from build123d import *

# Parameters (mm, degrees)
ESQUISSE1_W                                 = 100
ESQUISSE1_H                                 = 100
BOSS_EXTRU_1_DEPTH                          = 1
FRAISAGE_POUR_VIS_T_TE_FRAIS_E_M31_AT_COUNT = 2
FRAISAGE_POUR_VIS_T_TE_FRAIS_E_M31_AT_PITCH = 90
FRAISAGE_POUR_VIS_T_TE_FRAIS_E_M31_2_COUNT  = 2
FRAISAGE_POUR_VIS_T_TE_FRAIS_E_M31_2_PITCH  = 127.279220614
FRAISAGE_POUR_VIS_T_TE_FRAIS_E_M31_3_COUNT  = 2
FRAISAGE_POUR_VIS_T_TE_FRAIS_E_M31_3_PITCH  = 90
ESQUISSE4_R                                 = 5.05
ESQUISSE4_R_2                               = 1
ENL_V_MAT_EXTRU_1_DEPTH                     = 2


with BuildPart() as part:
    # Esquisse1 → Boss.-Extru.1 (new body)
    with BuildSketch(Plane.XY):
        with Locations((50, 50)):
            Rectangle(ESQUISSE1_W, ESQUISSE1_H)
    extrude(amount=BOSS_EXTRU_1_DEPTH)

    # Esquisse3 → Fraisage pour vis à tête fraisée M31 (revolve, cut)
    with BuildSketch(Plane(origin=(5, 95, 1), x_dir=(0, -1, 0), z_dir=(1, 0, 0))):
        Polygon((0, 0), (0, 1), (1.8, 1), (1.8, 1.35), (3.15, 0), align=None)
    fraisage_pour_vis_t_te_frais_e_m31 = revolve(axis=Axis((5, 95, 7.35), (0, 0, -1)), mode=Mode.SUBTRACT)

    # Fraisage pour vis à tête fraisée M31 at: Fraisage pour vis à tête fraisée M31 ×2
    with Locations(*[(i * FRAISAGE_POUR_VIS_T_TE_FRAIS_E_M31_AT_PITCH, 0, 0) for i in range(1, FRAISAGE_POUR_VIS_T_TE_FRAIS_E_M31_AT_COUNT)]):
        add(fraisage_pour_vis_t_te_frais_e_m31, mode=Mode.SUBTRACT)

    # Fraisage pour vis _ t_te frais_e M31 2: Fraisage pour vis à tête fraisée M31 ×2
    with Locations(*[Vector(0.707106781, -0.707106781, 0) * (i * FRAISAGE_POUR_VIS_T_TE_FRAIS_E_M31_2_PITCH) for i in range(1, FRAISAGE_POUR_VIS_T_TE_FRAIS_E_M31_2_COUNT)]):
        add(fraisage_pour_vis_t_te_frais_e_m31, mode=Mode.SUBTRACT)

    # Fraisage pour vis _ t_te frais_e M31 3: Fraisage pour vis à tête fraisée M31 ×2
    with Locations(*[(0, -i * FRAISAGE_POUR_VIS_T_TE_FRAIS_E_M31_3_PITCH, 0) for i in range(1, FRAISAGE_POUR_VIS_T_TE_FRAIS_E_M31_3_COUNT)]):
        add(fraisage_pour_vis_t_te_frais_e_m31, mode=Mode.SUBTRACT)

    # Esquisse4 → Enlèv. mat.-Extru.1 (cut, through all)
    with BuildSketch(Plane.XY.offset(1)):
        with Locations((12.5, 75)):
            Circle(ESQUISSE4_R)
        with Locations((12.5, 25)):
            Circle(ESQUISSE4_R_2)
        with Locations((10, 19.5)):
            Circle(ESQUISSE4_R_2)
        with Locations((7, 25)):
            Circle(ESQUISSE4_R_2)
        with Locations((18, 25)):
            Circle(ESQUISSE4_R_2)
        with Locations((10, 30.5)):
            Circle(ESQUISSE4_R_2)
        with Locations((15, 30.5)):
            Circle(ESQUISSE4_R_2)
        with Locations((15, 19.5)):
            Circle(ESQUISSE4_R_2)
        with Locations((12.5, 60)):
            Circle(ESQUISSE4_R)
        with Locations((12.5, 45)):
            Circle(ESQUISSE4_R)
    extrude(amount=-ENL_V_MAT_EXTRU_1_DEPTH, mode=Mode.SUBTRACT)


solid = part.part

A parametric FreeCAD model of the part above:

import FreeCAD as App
import Part
import Sketcher
from FreeCAD import Vector
Q = App.Units.Quantity

doc = App.newDocument("Part")
params = doc.addObject("Spreadsheet::Sheet", "Params")
for row, (alias, value) in enumerate([
    ("sketch1_width", "100 mm"),
    ("pad1_length", "1 mm"),
    ("sketch2_height", "1 mm"),
    ("sketch2_width", "1.8 mm"),
    ("sketch2_width2", "3.15 mm"),
    ("groove_angle", "360 deg"),
    ("linearpattern_pitch", "90 mm"),
    ("linearpattern2_pitch", "127.279221 mm"),
    ("linearpattern3_pitch", "90 mm"),
    ("sketch3_diameter", "2 mm"),
    ("sketch3_diameter2", "10.1 mm"),
], start=1):
    params.set(f"A{row}", alias)
    params.set(f"B{row}", "=" + value)
    params.setAlias(f"B{row}", alias)

body = doc.addObject("PartDesign::Body", "Body")

sketch1 = doc.addObject("Sketcher::SketchObject", "Sketch")
body.addObject(sketch1)
sketch1.AttachmentSupport = (doc.XY_Plane, [""])
sketch1.MapMode = "FlatFace"
sketch1.addGeometry(Part.LineSegment(Vector(0, 100, 0), Vector(0, 0, 0)), False)
sketch1.addGeometry(Part.LineSegment(Vector(0, 0, 0), Vector(100, 0, 0)), False)
sketch1.addGeometry(Part.LineSegment(Vector(100, 0, 0), Vector(100, 100, 0)), False)
sketch1.addGeometry(Part.LineSegment(Vector(100, 100, 0), Vector(0, 100, 0)), False)
sketch1.addConstraint(Sketcher.Constraint("Coincident", 0, 2, 1, 1))
sketch1.addConstraint(Sketcher.Constraint("Coincident", 1, 2, 2, 1))
sketch1.addConstraint(Sketcher.Constraint("Coincident", 2, 2, 3, 1))
sketch1.addConstraint(Sketcher.Constraint("Coincident", 3, 2, 0, 1))
sketch1.addConstraint(Sketcher.Constraint("Vertical", 0))
sketch1.addConstraint(Sketcher.Constraint("Horizontal", 1))
sketch1.addConstraint(Sketcher.Constraint("Vertical", 2))
sketch1.addConstraint(Sketcher.Constraint("Horizontal", 3))
sketch1.addConstraint(Sketcher.Constraint("Coincident", 0, 2, -1, 1))
sketch1.addConstraint(Sketcher.Constraint("Equal", 3, 0))
sketch1.addConstraint(Sketcher.Constraint("DistanceX", 1, 1, 1, 2, Q("100 mm")))
sketch1.setExpression("Constraints[10]", "Params.sketch1_width")
pad1 = doc.addObject("PartDesign::Pad", "Pad")
body.addObject(pad1)
pad1.Profile = sketch1
pad1.setExpression("Length", "Params.pad1_length")

sketch2 = doc.addObject("Sketcher::SketchObject", "Sketch001")
body.addObject(sketch2)
sketch2.AttachmentSupport = (doc.YZ_Plane, [""])
sketch2.MapMode = "FlatFace"
sketch2.AttachmentOffset = App.Placement(Vector(0, 0, 5), App.Rotation())
sketch2.addGeometry(Part.LineSegment(Vector(95, 0, 0), Vector(95, 1, 0)), False)
sketch2.addGeometry(Part.LineSegment(Vector(95, 1, 0), Vector(91.85, 1, 0)), False)
sketch2.addGeometry(Part.LineSegment(Vector(91.85, 1, 0), Vector(93.2, -0.35, 0)), False)
sketch2.addGeometry(Part.LineSegment(Vector(93.2, -0.35, 0), Vector(93.2, 0, 0)), False)
sketch2.addGeometry(Part.LineSegment(Vector(93.2, 0, 0), Vector(95, 0, 0)), False)
sketch2.addGeometry(Part.LineSegment(Vector(95, 1, 0), Vector(95, -0.35, 0)), True)
sketch2.addConstraint(Sketcher.Constraint("Coincident", 0, 2, 1, 1))
sketch2.addConstraint(Sketcher.Constraint("Coincident", 1, 2, 2, 1))
sketch2.addConstraint(Sketcher.Constraint("Coincident", 2, 2, 3, 1))
sketch2.addConstraint(Sketcher.Constraint("Coincident", 3, 2, 4, 1))
sketch2.addConstraint(Sketcher.Constraint("Coincident", 4, 2, 0, 1))
sketch2.addConstraint(Sketcher.Constraint("Vertical", 0))
sketch2.addConstraint(Sketcher.Constraint("Horizontal", 1))
sketch2.addConstraint(Sketcher.Constraint("Vertical", 3))
sketch2.addConstraint(Sketcher.Constraint("Horizontal", 4))
sketch2.addConstraint(Sketcher.Constraint("Vertical", 5))
sketch2.addConstraint(Sketcher.Constraint("Coincident", 5, 1, 0, 2))
sketch2.addConstraint(Sketcher.Constraint("PointOnObject", 3, 2, -1))
sketch2.addConstraint(Sketcher.Constraint("Horizontal", 2, 2, 5, 2))
sketch2.addConstraint(Sketcher.Constraint("DistanceY", 0, 1, 0, 2, Q("1 mm")))
sketch2.addConstraint(Sketcher.Constraint("Angle", 2, Q("-45 deg")))
sketch2.addConstraint(Sketcher.Constraint("DistanceX", 4, 1, 4, 2, Q("1.8 mm")))
sketch2.addConstraint(Sketcher.Constraint("DistanceX", -1, 1, 0, 2, Q("95 mm")))
sketch2.addConstraint(Sketcher.Constraint("DistanceX", 1, 2, 1, 1, Q("3.15 mm")))
sketch2.setExpression("Constraints[13]", "Params.sketch2_height")
sketch2.setExpression("Constraints[15]", "Params.sketch2_width")
sketch2.setExpression("Constraints[17]", "Params.sketch2_width2")
groove = doc.addObject("PartDesign::Groove", "Groove")
body.addObject(groove)
groove.Profile = sketch2
groove.ReferenceAxis = (sketch2, ["Axis0"])
groove.setExpression("Angle", "Params.groove_angle")
doc.recompute()

linearpattern = doc.addObject("PartDesign::LinearPattern", "LinearPattern")
body.addObject(linearpattern)
linearpattern.Originals = [groove]
linearpattern.Direction = (doc.X_Axis, [""])
linearpattern.Mode = "offset"
linearpattern.setExpression("Offset", "Params.linearpattern_pitch")
linearpattern.Occurrences = 2
body.Tip = linearpattern
doc.recompute()

datumline = doc.addObject("PartDesign::Line", "DatumLine")
body.addObject(datumline)
datumline.Placement = App.Placement(Vector(0, 0, 0), App.Rotation(Vector(0, 0, 1), Vector(0.707106781, -0.707106781, 0)))
linearpattern2 = doc.addObject("PartDesign::LinearPattern", "LinearPattern001")
body.addObject(linearpattern2)
linearpattern2.Originals = [groove]
linearpattern2.Direction = (datumline, [""])
linearpattern2.Mode = "offset"
linearpattern2.setExpression("Offset", "Params.linearpattern2_pitch")
linearpattern2.Occurrences = 2
body.Tip = linearpattern2
doc.recompute()

linearpattern3 = doc.addObject("PartDesign::LinearPattern", "LinearPattern002")
body.addObject(linearpattern3)
linearpattern3.Originals = [groove]
linearpattern3.Direction = (doc.Y_Axis, [""])
linearpattern3.Mode = "offset"
linearpattern3.setExpression("Offset", "Params.linearpattern3_pitch")
linearpattern3.Occurrences = 2
linearpattern3.Reversed = True
body.Tip = linearpattern3

sketch3 = doc.addObject("Sketcher::SketchObject", "Sketch002")
body.addObject(sketch3)
sketch3.AttachmentSupport = (doc.XY_Plane, [""])
sketch3.MapMode = "FlatFace"
sketch3.AttachmentOffset = App.Placement(Vector(0, 0, 1), App.Rotation())
sketch3.addGeometry(Part.Circle(Vector(12.5, 75, 0), Vector(0, 0, 1), 5), False)
sketch3.addGeometry(Part.Circle(Vector(12.5, 25, 0), Vector(0, 0, 1), 1), False)
sketch3.addGeometry(Part.Circle(Vector(10, 19.5, 0), Vector(0, 0, 1), 1), False)
sketch3.addGeometry(Part.Circle(Vector(7, 25, 0), Vector(0, 0, 1), 1), False)
sketch3.addGeometry(Part.Circle(Vector(18, 25, 0), Vector(0, 0, 1), 1), False)
sketch3.addGeometry(Part.Circle(Vector(10, 30.5, 0), Vector(0, 0, 1), 1), False)
sketch3.addGeometry(Part.Circle(Vector(15, 30.5, 0), Vector(0, 0, 1), 1), False)
sketch3.addGeometry(Part.Circle(Vector(15, 19.5, 0), Vector(0, 0, 1), 1), False)
sketch3.addGeometry(Part.Circle(Vector(12.5, 60, 0), Vector(0, 0, 1), 5), False)
sketch3.addGeometry(Part.Circle(Vector(12.5, 45, 0), Vector(0, 0, 1), 5), False)
sketch3.addConstraint(Sketcher.Constraint("Equal", 1, 2))
sketch3.addConstraint(Sketcher.Constraint("Equal", 2, 3))
sketch3.addConstraint(Sketcher.Constraint("Equal", 3, 4))
sketch3.addConstraint(Sketcher.Constraint("Equal", 4, 5))
sketch3.addConstraint(Sketcher.Constraint("Equal", 5, 6))
sketch3.addConstraint(Sketcher.Constraint("Equal", 6, 7))
sketch3.addConstraint(Sketcher.Constraint("Equal", 0, 8))
sketch3.addConstraint(Sketcher.Constraint("Equal", 8, 9))
sketch3.addConstraint(Sketcher.Constraint("Horizontal", 1, 3, 3, 3))
sketch3.addConstraint(Sketcher.Constraint("Horizontal", 3, 3, 4, 3))
sketch3.addConstraint(Sketcher.Constraint("Horizontal", 5, 3, 6, 3))
sketch3.addConstraint(Sketcher.Constraint("Horizontal", 2, 3, 7, 3))
sketch3.addConstraint(Sketcher.Constraint("Vertical", 0, 3, 1, 3))
sketch3.addConstraint(Sketcher.Constraint("Vertical", 2, 3, 5, 3))
sketch3.addConstraint(Sketcher.Constraint("Vertical", 6, 3, 7, 3))
sketch3.addConstraint(Sketcher.Constraint("Vertical", 1, 3, 8, 3))
sketch3.addConstraint(Sketcher.Constraint("Vertical", 8, 3, 9, 3))
sketch3.addConstraint(Sketcher.Constraint("Diameter", 1, Q("2 mm")))
sketch3.addConstraint(Sketcher.Constraint("Diameter", 0, Q("10.1 mm")))
sketch3.addConstraint(Sketcher.Constraint("DistanceY", -1, 1, 0, 3, Q("75 mm")))
sketch3.addConstraint(Sketcher.Constraint("DistanceY", -1, 1, 1, 3, Q("25 mm")))
sketch3.addConstraint(Sketcher.Constraint("DistanceX", -1, 1, 2, 3, Q("10 mm")))
sketch3.addConstraint(Sketcher.Constraint("DistanceX", -1, 1, 3, 3, Q("7 mm")))
sketch3.addConstraint(Sketcher.Constraint("DistanceX", -1, 1, 4, 3, Q("18 mm")))
sketch3.addConstraint(Sketcher.Constraint("DistanceX", -1, 1, 6, 3, Q("15 mm")))
sketch3.addConstraint(Sketcher.Constraint("DistanceY", -1, 1, 8, 3, Q("60 mm")))
sketch3.addConstraint(Sketcher.Constraint("DistanceY", -1, 1, 9, 3, Q("45 mm")))
sketch3.addConstraint(Sketcher.Constraint("DistanceY", 2, 3, 5, 3, Q("11 mm")))
sketch3.addConstraint(Sketcher.Constraint("DistanceX", -1, 1, 0, 3, Q("12.5 mm")))
sketch3.addConstraint(Sketcher.Constraint("DistanceY", -1, 1, 2, 3, Q("19.5 mm")))
sketch3.setExpression("Constraints[17]", "Params.sketch3_diameter")
sketch3.setExpression("Constraints[18]", "Params.sketch3_diameter2")
pocket1 = doc.addObject("PartDesign::Pocket", "Pocket")
body.addObject(pocket1)
pocket1.Profile = sketch3
pocket1.Type = "ThroughAll"

doc.recompute()
